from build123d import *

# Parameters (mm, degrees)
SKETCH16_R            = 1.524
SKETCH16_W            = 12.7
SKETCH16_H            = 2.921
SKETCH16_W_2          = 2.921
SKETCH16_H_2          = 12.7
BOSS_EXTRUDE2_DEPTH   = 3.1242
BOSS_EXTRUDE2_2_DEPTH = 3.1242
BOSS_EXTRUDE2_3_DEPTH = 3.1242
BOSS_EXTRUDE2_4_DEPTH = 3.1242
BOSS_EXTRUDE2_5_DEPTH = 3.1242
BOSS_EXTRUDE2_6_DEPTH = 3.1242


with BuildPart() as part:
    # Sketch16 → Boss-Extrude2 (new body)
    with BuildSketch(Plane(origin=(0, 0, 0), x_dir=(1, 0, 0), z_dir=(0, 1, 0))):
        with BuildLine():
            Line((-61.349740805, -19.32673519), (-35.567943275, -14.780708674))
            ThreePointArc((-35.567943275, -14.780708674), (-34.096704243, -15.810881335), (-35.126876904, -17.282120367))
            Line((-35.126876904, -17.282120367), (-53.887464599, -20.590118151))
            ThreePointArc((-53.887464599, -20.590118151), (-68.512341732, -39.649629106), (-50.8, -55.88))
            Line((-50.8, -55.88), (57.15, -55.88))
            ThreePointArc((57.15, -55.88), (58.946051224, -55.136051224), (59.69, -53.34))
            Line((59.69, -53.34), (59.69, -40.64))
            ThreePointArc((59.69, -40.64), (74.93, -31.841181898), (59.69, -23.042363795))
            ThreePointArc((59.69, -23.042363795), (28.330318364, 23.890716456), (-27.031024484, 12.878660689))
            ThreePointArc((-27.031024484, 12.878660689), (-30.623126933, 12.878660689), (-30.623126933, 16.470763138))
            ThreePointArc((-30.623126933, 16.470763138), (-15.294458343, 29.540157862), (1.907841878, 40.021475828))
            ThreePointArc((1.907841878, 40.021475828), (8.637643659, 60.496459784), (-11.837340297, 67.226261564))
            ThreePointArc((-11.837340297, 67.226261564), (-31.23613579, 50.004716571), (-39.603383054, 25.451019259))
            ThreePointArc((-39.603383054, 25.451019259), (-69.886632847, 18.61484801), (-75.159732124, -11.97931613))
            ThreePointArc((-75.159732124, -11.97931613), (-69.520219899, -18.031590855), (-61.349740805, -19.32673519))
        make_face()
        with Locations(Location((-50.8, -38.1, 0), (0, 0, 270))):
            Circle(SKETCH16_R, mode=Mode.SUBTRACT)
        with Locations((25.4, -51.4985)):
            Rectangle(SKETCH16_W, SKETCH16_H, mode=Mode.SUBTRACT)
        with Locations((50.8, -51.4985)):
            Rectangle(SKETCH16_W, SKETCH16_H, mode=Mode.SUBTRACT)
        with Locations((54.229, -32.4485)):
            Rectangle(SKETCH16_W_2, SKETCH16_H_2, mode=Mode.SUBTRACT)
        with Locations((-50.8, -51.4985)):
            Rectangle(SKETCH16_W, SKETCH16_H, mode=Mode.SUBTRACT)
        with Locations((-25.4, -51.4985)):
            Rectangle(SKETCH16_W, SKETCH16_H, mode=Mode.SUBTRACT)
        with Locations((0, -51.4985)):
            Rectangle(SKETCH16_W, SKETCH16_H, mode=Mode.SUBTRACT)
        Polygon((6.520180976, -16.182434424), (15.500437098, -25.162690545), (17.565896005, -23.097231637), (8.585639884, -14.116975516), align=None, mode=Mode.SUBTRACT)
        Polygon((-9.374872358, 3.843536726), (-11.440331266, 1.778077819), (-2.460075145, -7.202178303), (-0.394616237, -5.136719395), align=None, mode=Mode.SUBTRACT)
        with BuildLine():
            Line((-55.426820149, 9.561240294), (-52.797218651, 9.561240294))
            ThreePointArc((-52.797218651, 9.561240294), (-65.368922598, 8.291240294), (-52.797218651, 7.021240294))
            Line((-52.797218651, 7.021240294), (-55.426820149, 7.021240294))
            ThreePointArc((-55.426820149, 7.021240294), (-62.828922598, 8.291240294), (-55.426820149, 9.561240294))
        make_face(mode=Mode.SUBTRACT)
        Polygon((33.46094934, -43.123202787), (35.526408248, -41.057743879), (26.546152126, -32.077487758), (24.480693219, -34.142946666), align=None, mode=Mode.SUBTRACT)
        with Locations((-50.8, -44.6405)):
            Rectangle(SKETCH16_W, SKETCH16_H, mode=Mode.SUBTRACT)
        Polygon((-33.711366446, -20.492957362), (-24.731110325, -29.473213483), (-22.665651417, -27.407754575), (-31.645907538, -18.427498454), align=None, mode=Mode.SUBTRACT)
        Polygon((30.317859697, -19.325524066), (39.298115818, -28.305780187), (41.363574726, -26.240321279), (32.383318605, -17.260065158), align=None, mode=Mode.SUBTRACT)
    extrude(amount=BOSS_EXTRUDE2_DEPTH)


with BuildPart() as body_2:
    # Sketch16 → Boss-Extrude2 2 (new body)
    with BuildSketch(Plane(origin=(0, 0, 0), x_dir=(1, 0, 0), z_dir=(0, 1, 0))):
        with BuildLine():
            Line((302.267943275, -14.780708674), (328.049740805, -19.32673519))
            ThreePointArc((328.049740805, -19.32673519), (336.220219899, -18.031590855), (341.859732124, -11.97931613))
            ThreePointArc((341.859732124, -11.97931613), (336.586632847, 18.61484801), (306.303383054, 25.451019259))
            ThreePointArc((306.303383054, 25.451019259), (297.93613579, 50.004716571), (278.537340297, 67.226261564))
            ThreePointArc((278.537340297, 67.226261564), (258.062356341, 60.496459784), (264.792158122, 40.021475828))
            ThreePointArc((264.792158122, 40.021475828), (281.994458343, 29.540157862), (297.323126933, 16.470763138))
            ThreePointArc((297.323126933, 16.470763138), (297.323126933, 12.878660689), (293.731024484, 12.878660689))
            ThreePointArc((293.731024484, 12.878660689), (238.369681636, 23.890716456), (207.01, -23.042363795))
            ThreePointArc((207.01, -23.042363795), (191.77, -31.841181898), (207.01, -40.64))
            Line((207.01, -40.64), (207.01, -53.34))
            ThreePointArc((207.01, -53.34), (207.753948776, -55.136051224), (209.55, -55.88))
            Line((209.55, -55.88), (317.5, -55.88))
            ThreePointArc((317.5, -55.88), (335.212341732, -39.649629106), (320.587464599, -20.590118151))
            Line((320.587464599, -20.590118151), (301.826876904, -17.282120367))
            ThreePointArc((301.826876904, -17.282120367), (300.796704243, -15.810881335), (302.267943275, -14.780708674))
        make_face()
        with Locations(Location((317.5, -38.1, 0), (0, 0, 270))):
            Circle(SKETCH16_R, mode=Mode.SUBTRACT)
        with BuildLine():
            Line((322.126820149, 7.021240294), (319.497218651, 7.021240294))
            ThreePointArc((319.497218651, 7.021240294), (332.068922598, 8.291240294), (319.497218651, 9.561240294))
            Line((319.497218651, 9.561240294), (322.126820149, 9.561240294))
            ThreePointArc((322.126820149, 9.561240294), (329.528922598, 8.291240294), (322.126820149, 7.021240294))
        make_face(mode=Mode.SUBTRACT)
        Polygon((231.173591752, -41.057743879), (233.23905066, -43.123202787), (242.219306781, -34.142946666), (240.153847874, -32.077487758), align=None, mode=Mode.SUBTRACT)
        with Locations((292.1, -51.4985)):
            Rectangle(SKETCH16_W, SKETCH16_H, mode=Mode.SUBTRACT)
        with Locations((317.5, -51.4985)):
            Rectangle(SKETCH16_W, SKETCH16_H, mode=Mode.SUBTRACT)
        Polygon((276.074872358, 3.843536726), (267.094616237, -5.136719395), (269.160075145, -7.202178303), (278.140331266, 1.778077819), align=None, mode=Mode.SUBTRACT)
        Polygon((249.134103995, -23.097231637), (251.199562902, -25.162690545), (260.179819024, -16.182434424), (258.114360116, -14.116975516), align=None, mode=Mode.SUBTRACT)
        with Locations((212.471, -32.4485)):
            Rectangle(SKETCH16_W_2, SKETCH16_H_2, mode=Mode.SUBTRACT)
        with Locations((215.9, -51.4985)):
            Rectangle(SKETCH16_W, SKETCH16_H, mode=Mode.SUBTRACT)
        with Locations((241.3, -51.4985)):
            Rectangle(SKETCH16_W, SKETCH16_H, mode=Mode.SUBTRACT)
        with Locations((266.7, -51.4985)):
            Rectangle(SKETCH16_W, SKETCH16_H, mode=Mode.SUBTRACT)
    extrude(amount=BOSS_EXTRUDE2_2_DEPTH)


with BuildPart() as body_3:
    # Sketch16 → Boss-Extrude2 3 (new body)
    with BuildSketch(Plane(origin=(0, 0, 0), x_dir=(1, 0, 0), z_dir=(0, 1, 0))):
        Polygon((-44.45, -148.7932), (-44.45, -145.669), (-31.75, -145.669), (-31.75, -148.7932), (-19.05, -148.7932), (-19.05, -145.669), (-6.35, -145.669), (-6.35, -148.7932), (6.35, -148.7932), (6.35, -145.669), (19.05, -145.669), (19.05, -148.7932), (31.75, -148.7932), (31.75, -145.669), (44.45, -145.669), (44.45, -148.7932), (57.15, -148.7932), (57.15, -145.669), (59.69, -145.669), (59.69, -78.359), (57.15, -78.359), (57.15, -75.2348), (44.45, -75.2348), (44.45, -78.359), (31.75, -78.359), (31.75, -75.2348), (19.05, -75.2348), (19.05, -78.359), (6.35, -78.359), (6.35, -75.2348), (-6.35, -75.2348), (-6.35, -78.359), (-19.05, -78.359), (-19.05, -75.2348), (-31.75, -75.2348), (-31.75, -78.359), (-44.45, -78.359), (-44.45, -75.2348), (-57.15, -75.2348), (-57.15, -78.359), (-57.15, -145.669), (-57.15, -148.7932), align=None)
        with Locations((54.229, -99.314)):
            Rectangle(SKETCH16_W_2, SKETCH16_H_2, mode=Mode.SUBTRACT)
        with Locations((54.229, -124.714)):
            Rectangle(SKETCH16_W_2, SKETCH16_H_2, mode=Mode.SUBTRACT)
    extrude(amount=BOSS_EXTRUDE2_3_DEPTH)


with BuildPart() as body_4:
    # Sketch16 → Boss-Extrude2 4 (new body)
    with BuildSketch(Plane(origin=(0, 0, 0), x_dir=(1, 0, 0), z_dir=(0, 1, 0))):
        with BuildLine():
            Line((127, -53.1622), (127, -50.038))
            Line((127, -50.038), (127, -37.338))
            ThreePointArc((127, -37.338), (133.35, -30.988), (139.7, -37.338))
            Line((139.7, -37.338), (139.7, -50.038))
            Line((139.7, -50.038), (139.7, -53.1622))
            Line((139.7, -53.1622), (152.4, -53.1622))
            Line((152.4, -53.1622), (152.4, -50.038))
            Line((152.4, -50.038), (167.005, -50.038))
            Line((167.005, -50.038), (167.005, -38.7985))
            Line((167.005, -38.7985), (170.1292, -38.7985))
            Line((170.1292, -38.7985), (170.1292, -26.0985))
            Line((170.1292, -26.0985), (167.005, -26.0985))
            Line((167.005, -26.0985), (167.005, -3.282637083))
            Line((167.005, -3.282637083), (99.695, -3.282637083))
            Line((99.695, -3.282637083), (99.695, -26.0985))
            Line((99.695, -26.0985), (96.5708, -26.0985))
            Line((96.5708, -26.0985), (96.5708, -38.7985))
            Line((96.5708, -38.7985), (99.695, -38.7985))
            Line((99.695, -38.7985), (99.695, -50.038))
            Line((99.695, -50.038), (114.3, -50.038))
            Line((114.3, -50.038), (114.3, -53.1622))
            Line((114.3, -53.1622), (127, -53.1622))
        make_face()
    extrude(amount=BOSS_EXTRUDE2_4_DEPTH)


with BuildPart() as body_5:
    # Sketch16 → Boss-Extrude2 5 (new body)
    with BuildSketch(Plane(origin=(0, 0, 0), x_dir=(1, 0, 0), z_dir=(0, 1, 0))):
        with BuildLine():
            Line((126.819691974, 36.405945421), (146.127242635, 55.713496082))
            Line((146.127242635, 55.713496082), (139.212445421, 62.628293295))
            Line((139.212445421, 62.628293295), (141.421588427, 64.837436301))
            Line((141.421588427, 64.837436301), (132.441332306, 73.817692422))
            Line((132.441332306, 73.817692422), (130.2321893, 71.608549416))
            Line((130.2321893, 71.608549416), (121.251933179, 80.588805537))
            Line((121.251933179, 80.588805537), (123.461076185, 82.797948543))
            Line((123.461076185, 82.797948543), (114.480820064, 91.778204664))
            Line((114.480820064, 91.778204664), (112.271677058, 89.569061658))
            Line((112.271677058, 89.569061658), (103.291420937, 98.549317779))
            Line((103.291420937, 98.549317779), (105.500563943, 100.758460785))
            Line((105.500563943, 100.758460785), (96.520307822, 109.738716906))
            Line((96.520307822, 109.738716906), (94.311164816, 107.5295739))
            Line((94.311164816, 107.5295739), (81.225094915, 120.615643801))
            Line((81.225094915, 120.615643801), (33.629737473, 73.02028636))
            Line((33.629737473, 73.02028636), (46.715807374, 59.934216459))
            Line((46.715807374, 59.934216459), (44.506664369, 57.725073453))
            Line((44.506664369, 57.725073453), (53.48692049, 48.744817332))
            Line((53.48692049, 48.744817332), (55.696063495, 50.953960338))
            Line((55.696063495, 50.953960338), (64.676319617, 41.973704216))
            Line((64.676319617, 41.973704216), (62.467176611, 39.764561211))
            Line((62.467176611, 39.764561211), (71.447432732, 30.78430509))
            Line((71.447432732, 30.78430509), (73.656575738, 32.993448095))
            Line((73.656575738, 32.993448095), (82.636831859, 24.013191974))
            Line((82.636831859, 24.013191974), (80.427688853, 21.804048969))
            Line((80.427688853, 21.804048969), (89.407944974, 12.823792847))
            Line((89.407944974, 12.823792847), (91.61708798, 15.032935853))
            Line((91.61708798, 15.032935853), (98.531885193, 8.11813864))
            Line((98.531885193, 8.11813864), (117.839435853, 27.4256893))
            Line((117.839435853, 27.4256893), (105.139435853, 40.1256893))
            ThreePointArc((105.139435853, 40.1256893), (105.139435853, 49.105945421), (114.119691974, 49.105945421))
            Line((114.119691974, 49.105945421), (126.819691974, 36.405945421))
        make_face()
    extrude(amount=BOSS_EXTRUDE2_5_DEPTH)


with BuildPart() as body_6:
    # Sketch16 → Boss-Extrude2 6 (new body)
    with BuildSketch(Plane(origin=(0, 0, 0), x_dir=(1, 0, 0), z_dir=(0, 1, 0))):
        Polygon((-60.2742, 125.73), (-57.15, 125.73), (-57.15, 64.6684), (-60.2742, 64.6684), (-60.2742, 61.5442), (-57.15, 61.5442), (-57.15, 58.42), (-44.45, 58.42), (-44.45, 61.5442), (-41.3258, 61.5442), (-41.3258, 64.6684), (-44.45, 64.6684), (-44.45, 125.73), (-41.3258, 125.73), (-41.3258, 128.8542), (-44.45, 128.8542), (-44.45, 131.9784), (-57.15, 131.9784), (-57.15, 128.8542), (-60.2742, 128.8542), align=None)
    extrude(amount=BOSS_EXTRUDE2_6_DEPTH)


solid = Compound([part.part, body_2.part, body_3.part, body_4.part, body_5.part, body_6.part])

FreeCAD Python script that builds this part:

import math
import FreeCAD as App
import Part
import Sketcher
from FreeCAD import Vector
Q = App.Units.Quantity


def add_polygon(sketch, points):
    """Adds a closed chain of lines whose ends are joined by coincident constraints."""
    first, n = sketch.GeometryCount, len(points)
    for a, b in zip(points, points[1:] + points[:1]):
        sketch.addGeometry(Part.LineSegment(App.Vector(*a, 0), App.Vector(*b, 0)), False)
    for i in range(n):
        sketch.addConstraint(Sketcher.Constraint("Coincident", first + i, 2, first + (i + 1) % n, 1))

doc = App.newDocument("Part")
body = doc.addObject("PartDesign::Body", "Body")

# Sketch on XZ plane
sketch1 = doc.addObject("Sketcher::SketchObject", "Sketch")
body.addObject(sketch1)
sketch1.AttachmentSupport = (doc.XZ_Plane, [""])
sketch1.MapMode = "FlatFace"
sketch1.addGeometry(Part.LineSegment(Vector(-61.3, 19.3, 0), Vector(-35.6, 14.8, 0)), False)  # 0
sketch1.addGeometry(Part.ArcOfCircle(Part.Circle(Vector(-35.3, 16, 0), Vector(0, 0, 1), 1.3), math.radians(-100), math.radians(80)), False)  # 1
sketch1.addGeometry(Part.LineSegment(Vector(-35.1, 17.3, 0), Vector(-53.9, 20.6, 0)), False)  # 2
sketch1.addGeometry(Part.ArcOfCircle(Part.Circle(Vector(-50.8, 38.1, 0), Vector(0, 0, 1), 17.8), math.radians(90), math.radians(260)), False)  # 3
sketch1.addGeometry(Part.LineSegment(Vector(-50.8, 55.9, 0), Vector(57.1, 55.9, 0)), False)  # 4
sketch1.addGeometry(Part.ArcOfCircle(Part.Circle(Vector(57.1, 53.3, 0), Vector(0, 0, 1), 2.5), math.radians(0), math.radians(90)), False)  # 5
sketch1.addGeometry(Part.LineSegment(Vector(59.7, 53.3, 0), Vector(59.7, 40.6, 0)), False)  # 6
sketch1.addGeometry(Part.ArcOfCircle(Part.Circle(Vector(64.8, 31.8, 0), Vector(0, 0, 1), 10.2), math.radians(-120), math.radians(120)), False)  # 7
sketch1.addGeometry(Part.ArcOfCircle(Part.Circle(Vector(8.9, 23, 0), Vector(0, 0, 1), 50.8), math.radians(-135), math.radians(0)), False)  # 8
sketch1.addGeometry(Part.ArcOfCircle(Part.Circle(Vector(-28.8, -14.7, 0), Vector(0, 0, 1), 2.5), math.radians(45), math.radians(225)), False)  # 9
sketch1.addGeometry(Part.ArcOfCircle(Part.Circle(Vector(59.2, 73.3, 0), Vector(0, 0, 1), 127), math.radians(-135), math.radians(-116.81)), False)  # 10
sketch1.addGeometry(Part.ArcOfCircle(Part.Circle(Vector(-5, -53.6, 0), Vector(0, 0, 1), 15.2), math.radians(-117), math.radians(63)), False)  # 11
sketch1.addGeometry(Part.ArcOfCircle(Part.Circle(Vector(11.1, -21.9, 0), Vector(0, 0, 1), 50.8), math.radians(-176), math.radians(-117)), False)  # 12
sketch1.addGeometry(Part.ArcOfCircle(Part.Circle(Vector(-49.6, 0.6, 0), Vector(0, 0, 1), 27.9), math.radians(156), math.radians(291)), False)  # 13
sketch1.addGeometry(Part.ArcOfCircle(Part.Circle(Vector(-63.6, 6.8, 0), Vector(0, 0, 1), 12.7), math.radians(80), math.radians(156)), False)  # 14
add_polygon(sketch1, [(-44.5, 53), (-57.1, 53), (-57.1, 50), (-44.5, 50)])  # lines 15-18
add_polygon(sketch1, [(-44.5, 46.1), (-57.1, 46.1), (-57.1, 43.2), (-44.5, 43.2)])  # lines 19-22
sketch1.addGeometry(Part.Circle(Vector(-50.8, 38.1, 0), Vector(0, 0, 1), 1.5), False)  # 23
add_polygon(sketch1, [(-19.1, 53), (-31.8, 53), (-31.8, 50), (-19.1, 50)])  # lines 24-27
add_polygon(sketch1, [(-24.7, 29.5), (-33.7, 20.5), (-31.6, 18.4), (-22.7, 27.4)])  # lines 28-31
add_polygon(sketch1, [(6.3, 53), (-6.3, 53), (-6.3, 50), (6.3, 50)])  # lines 32-35
add_polygon(sketch1, [(31.8, 53), (19.1, 53), (19.1, 50), (31.8, 50)])  # lines 36-39
add_polygon(sketch1, [(57.1, 53), (44.5, 53), (44.5, 50), (57.1, 50)])  # lines 40-43
add_polygon(sketch1, [(35.5, 41.1), (33.5, 43.1), (24.5, 34.1), (26.5, 32.1)])  # lines 44-47
add_polygon(sketch1, [(15.5, 25.2), (6.5, 16.2), (8.6, 14.1), (17.6, 23.1)])  # lines 48-51
add_polygon(sketch1, [(55.7, 38.8), (52.8, 38.8), (52.8, 26.1), (55.7, 26.1)])  # lines 52-55
add_polygon(sketch1, [(39.3, 28.3), (30.3, 19.3), (32.4, 17.3), (41.4, 26.2)])  # lines 56-59
sketch1.addGeometry(Part.LineSegment(Vector(-52.8, -9.6, 0), Vector(-55.4, -9.6, 0)), False)  # 60
sketch1.addGeometry(Part.ArcOfCircle(Part.Circle(Vector(-59, -8.3, 0), Vector(0, 0, 1), 3.8), math.radians(19), math.radians(341)), False)  # 61
sketch1.addGeometry(Part.LineSegment(Vector(-55.4, -7, 0), Vector(-52.8, -7, 0)), False)  # 62
sketch1.addGeometry(Part.ArcOfCircle(Part.Circle(Vector(-59, -8.3, 0), Vector(0, 0, 1), 6.3), math.radians(12), math.radians(348)), False)  # 63
add_polygon(sketch1, [(-11.4, -1.8), (-9.4, -3.8), (-0.4, 5.1), (-2.5, 7.2)])  # lines 64-67
sketch1.addConstraint([
    Sketcher.Constraint("Tangent", 0, 2, 1, 1),
    Sketcher.Constraint("Tangent", 1, 2, 2, 1),
    Sketcher.Constraint("Tangent", 2, 2, 3, 2),
    Sketcher.Constraint("Tangent", 3, 1, 4, 1),
    Sketcher.Constraint("Tangent", 4, 2, 5, 2),
    Sketcher.Constraint("Tangent", 5, 1, 6, 1),
    Sketcher.Constraint("Coincident", 6, 2, 7, 2),
    Sketcher.Constraint("Coincident", 7, 1, 8, 2),
    Sketcher.Constraint("Tangent", 8, 1, 9, 1),
    Sketcher.Constraint("Tangent", 9, 2, 10, 1),
    Sketcher.Constraint("Tangent", 10, 2, 11, 2),
    Sketcher.Constraint("Tangent", 11, 1, 12, 2),
    Sketcher.Constraint("Coincident", 12, 1, 13, 2),
    Sketcher.Constraint("Tangent", 13, 1, 14, 2),
    Sketcher.Constraint("Tangent", 14, 1, 0, 1),
    Sketcher.Constraint("Coincident", 60, 2, 61, 2),
    Sketcher.Constraint("Coincident", 61, 1, 62, 1),
    Sketcher.Constraint("Coincident", 62, 2, 63, 1),
    Sketcher.Constraint("Coincident", 63, 2, 60, 1),
    Sketcher.Constraint("Horizontal", 4),
    Sketcher.Constraint("Vertical", 6),
    Sketcher.Constraint("Horizontal", 15),
    Sketcher.Constraint("Vertical", 16),
    Sketcher.Constraint("Horizontal", 17),
    Sketcher.Constraint("Vertical", 18),
    Sketcher.Constraint("Horizontal", 19),
    Sketcher.Constraint("Vertical", 20),
    Sketcher.Constraint("Horizontal", 21),
    Sketcher.Constraint("Vertical", 22),
    Sketcher.Constraint("Horizontal", 24),
    Sketcher.Constraint("Vertical", 25),
    Sketcher.Constraint("Horizontal", 26),
    Sketcher.Constraint("Vertical", 27),
    Sketcher.Constraint("Horizontal", 32),
    Sketcher.Constraint("Vertical", 33),
    Sketcher.Constraint("Horizontal", 34),
    Sketcher.Constraint("Vertical", 35),
    Sketcher.Constraint("Horizontal", 36),
    Sketcher.Constraint("Vertical", 37),
    Sketcher.Constraint("Horizontal", 38),
    Sketcher.Constraint("Vertical", 39),
    Sketcher.Constraint("Horizontal", 40),
    Sketcher.Constraint("Vertical", 41),
    Sketcher.Constraint("Horizontal", 42),
    Sketcher.Constraint("Vertical", 43),
    Sketcher.Constraint("Horizontal", 52),
    Sketcher.Constraint("Vertical", 53),
    Sketcher.Constraint("Horizontal", 54),
    Sketcher.Constraint("Vertical", 55),
    Sketcher.Constraint("Horizontal", 60),
    Sketcher.Constraint("Horizontal", 62),
    Sketcher.Constraint("Coincident", 23, 3, 3, 3),
    Sketcher.Constraint("Coincident", 63, 3, 61, 3),
    Sketcher.Constraint("Equal", 5, 9),
    Sketcher.Constraint("Equal", 8, 12),
    Sketcher.Constraint("Symmetric", 27, 2, 36, 2, -2),
    Sketcher.Constraint("Symmetric", 25, 2, 38, 2, -2),
    Sketcher.Constraint("Symmetric", 18, 2, 40, 2, -2),
    Sketcher.Constraint("Symmetric", 16, 2, 42, 2, -2),
    Sketcher.Constraint("Parallel", 0, 2),
    Sketcher.Constraint("Perpendicular", 28, 29),
    Sketcher.Constraint("Perpendicular", 29, 30),
    Sketcher.Constraint("Perpendicular", 30, 31),
    Sketcher.Constraint("Parallel", 31, 44),
    Sketcher.Constraint("Perpendicular", 44, 45),
    Sketcher.Constraint("Perpendicular", 45, 46),
    Sketcher.Constraint("Perpendicular", 46, 47),
    Sketcher.Constraint("Parallel", 47, 48),
    Sketcher.Constraint("Perpendicular", 48, 49),
    Sketcher.Constraint("Perpendicular", 49, 50),
    Sketcher.Constraint("Perpendicular", 50, 51),
    Sketcher.Constraint("Perpendicular", 51, 56),
    Sketcher.Constraint("Perpendicular", 56, 57),
    Sketcher.Constraint("Perpendicular", 57, 58),
    Sketcher.Constraint("Perpendicular", 58, 59),
    Sketcher.Constraint("Parallel", 59, 64),
    Sketcher.Constraint("Perpendicular", 64, 65),
    Sketcher.Constraint("Perpendicular", 65, 66),
    Sketcher.Constraint("Perpendicular", 66, 67),
    Sketcher.Constraint("Horizontal", 8, 3, 7, 1),
    Sketcher.Constraint("Horizontal", 18, 2, 24, 2),
    Sketcher.Constraint("Horizontal", 17, 2, 25, 2),
    Sketcher.Constraint("Horizontal", 27, 2, 32, 2),
    Sketcher.Constraint("Horizontal", 26, 2, 33, 2),
    Sketcher.Constraint("Vertical", 6, 2, 7, 1),
    Sketcher.Constraint("Vertical", 16, 2, 19, 2),
    Sketcher.Constraint("Vertical", 18, 2, 21, 2),
    Sketcher.Constraint("Vertical", 4, 2, 42, 2),
    Sketcher.Constraint("Vertical", 60, 2, 61, 1),
    Sketcher.Constraint("Equal", 21, 24),
    Sketcher.Constraint("Equal", 26, 32),
    Sketcher.Constraint("Equal", 42, 6),
    Sketcher.Constraint("Equal", 54, 16),
    Sketcher.Constraint("Equal", 18, 20),
    Sketcher.Constraint("Equal", 6, 53),
    Sketcher.Constraint("Equal", 31, 44),
    Sketcher.Constraint("Equal", 30, 45),
    Sketcher.Constraint("Equal", 47, 48),
    Sketcher.Constraint("Equal", 46, 49),
    Sketcher.Constraint("Equal", 50, 56),
    Sketcher.Constraint("Equal", 51, 57),
    Sketcher.Constraint("Equal", 59, 64),
    Sketcher.Constraint("Equal", 58, 65),
    Sketcher.Constraint("Radius", 8, Q("2 in")),
    Sketcher.Constraint("Radius", 10, Q("5 in")),
    Sketcher.Constraint("Radius", 3, Q("0.7 in")),
    Sketcher.Constraint("Radius", 5, Q("0.1 in")),
    Sketcher.Constraint("Radius", 7, Q("0.4 in")),
    Sketcher.Constraint("Radius", 11, Q("0.6 in")),
    Sketcher.Constraint("Radius", 13, Q("1.1 in")),
    Sketcher.Constraint("Radius", 14, Q("0.5 in")),
    Sketcher.Constraint("Diameter", 23, Q("0.12 in")),
    Sketcher.Constraint("Radius", 1, Q("0.05 in")),
    Sketcher.Constraint("Radius", 61, Q("0.15 in")),
    Sketcher.Constraint("Radius", 63, Q("0.25 in")),
    Sketcher.Constraint("DistanceX", 15, 2, 15, 1, Q("0.5 in")),
    Sketcher.Constraint("DistanceX", 3, 3, -1, 1, Q("2 in")),
    Sketcher.Constraint("Angle", 0, Q("-10 deg")),
    Sketcher.Constraint("Angle", 28, Q("-135 deg")),
    Sketcher.Constraint("Distance", 28, Q("0.5 in")),
    Sketcher.Constraint("DistanceX", 4, 1, 4, 2, Q("4.25 in")),
    Sketcher.Constraint("DistanceY", -1, 1, 3, 3, Q("1.5 in")),
    Sketcher.Constraint("DistanceY", -1, 1, 20, 2, Q("1.7 in")),
    Sketcher.Constraint("Distance", 2, Q("0.75 in")),
    Sketcher.Constraint("DistanceX", 52, 2, 52, 1, Q("0.115 in")),
    Sketcher.Constraint("DistanceX", -1, 1, 7, 3, Q("2.55 in")),
    Sketcher.Constraint("DistanceY", -1, 1, 16, 2, Q("1.97 in")),
    Sketcher.Constraint("DistanceX", 24, 2, -1, 1, Q("1.25 in")),
    Sketcher.Constraint("DistanceX", 32, 2, -1, 1, Q("0.25 in")),
    Sketcher.Constraint("Distance", 29, Q("0.115 in")),
    Sketcher.Constraint("DistanceX", 60, 2, 60, 1, 2.629601),
    Sketcher.Constraint("DistanceX", -1, 1, 48, 2, Q("0.2567 in")),
    Sketcher.Constraint("DistanceX", -1, 1, 52, 2, Q("2.0775 in")),
    Sketcher.Constraint("DistanceY", -1, 1, 52, 2, Q("1.5275 in")),
    Sketcher.Constraint("DistanceY", -1, 1, 10, 3, 73.331798),
    Sketcher.Constraint("DistanceY", -1, 1, 29, 2, 18.427498),
    Sketcher.Constraint("DistanceY", 9, 3, -1, 1, 14.674712),
    Sketcher.Constraint("DistanceX", 11, 3, -1, 1, 4.964749),
    Sketcher.Constraint("DistanceX", 13, 3, -1, 1, 49.629481),
    Sketcher.Constraint("DistanceY", -1, 1, 13, 3, 0.628109),
    Sketcher.Constraint("DistanceY", 61, 3, -1, 1, 8.29124),
    Sketcher.Constraint("DistanceX", 11, 1, -1, 1, 11.83734),
    Sketcher.Constraint("DistanceX", 30, 2, -1, 1, 22.665651),
    Sketcher.Constraint("DistanceX", -1, 1, 44, 2, 33.460949),
    Sketcher.Constraint("DistanceY", -1, 1, 50, 2, 23.097232),
    Sketcher.Constraint("DistanceX", -1, 1, 56, 2, 30.31786),
    Sketcher.Constraint("DistanceY", -1, 1, 58, 2, 26.240321),
    Sketcher.Constraint("DistanceX", 60, 2, -1, 1, 55.42682),
    Sketcher.Constraint("DistanceY", -1, 1, 65, 2, 5.136719),
    Sketcher.Constraint("DistanceX", 67, 2, -1, 1, 11.440331),
    Sketcher.Constraint("DistanceY", -1, 1, 44, 2, 43.123203),
])
pad1 = doc.addObject("PartDesign::Pad", "Pad")
body.addObject(pad1)
pad1.Profile = sketch1
pad1.Length = Q("0.123 in")
pad1.Reversed = True
body2 = doc.addObject("PartDesign::Body", "Body001")

# Sketch on XZ plane
sketch2 = doc.addObject("Sketcher::SketchObject", "Sketch001")
body2.addObject(sketch2)
sketch2.AttachmentSupport = (doc.getObject("XZ_Plane001"), [""])
sketch2.MapMode = "FlatFace"
sketch2.addGeometry(Part.LineSegment(Vector(302.3, 14.8, 0), Vector(328, 19.3, 0)), False)  # 0
sketch2.addGeometry(Part.ArcOfCircle(Part.Circle(Vector(330.3, 6.8, 0), Vector(0, 0, 1), 12.7), math.radians(24), math.radians(100)), False)  # 1
sketch2.addGeometry(Part.ArcOfCircle(Part.Circle(Vector(316.3, 0.6, 0), Vector(0, 0, 1), 27.9), math.radians(-111), math.radians(24)), False)  # 2
sketch2.addGeometry(Part.ArcOfCircle(Part.Circle(Vector(255.6, -21.9, 0), Vector(0, 0, 1), 50.8), math.radians(-63), math.radians(-4)), False)  # 3
sketch2.addGeometry(Part.ArcOfCircle(Part.Circle(Vector(271.7, -53.6, 0), Vector(0, 0, 1), 15.2), math.radians(117), math.radians(297)), False)  # 4
sketch2.addGeometry(Part.ArcOfCircle(Part.Circle(Vector(207.5, 73.3, 0), Vector(0, 0, 1), 127), math.radians(-63.19), math.radians(-45)), False)  # 5
sketch2.addGeometry(Part.ArcOfCircle(Part.Circle(Vector(295.5, -14.7, 0), Vector(0, 0, 1), 2.5), math.radians(-45), math.radians(135)), False)  # 6
sketch2.addGeometry(Part.ArcOfCircle(Part.Circle(Vector(257.8, 23, 0), Vector(0, 0, 1), 50.8), math.radians(-180), math.radians(-45)), False)  # 7
sketch2.addGeometry(Part.ArcOfCircle(Part.Circle(Vector(201.9, 31.8, 0), Vector(0, 0, 1), 10.2), math.radians(60), math.radians(300)), False)  # 8
sketch2.addGeometry(Part.LineSegment(Vector(207, 40.6, 0), Vector(207, 53.3, 0)), False)  # 9
sketch2.addGeometry(Part.ArcOfCircle(Part.Circle(Vector(209.6, 53.3, 0), Vector(0, 0, 1), 2.5), math.radians(90), math.radians(180)), False)  # 10
sketch2.addGeometry(Part.LineSegment(Vector(209.6, 55.9, 0), Vector(317.5, 55.9, 0)), False)  # 11
sketch2.addGeometry(Part.ArcOfCircle(Part.Circle(Vector(317.5, 38.1, 0), Vector(0, 0, 1), 17.8), math.radians(-80), math.radians(90)), False)  # 12
sketch2.addGeometry(Part.LineSegment(Vector(320.6, 20.6, 0), Vector(301.8, 17.3, 0)), False)  # 13
sketch2.addGeometry(Part.ArcOfCircle(Part.Circle(Vector(302, 16, 0), Vector(0, 0, 1), 1.3), math.radians(100), math.radians(280)), False)  # 14
add_polygon(sketch2, [(222.2, 53), (209.6, 53), (209.6, 50), (222.2, 50)])  # lines 15-18
add_polygon(sketch2, [(233.2, 43.1), (231.2, 41.1), (240.2, 32.1), (242.2, 34.1)])  # lines 19-22
add_polygon(sketch2, [(247.7, 53), (234.9, 53), (234.9, 50), (247.7, 50)])  # lines 23-26
add_polygon(sketch2, [(273.1, 53), (260.4, 53), (260.4, 50), (273.1, 50)])  # lines 27-30
add_polygon(sketch2, [(213.9, 38.8), (211, 38.8), (211, 26.1), (213.9, 26.1)])  # lines 31-34
add_polygon(sketch2, [(251.2, 25.2), (249.1, 23.1), (258.1, 14.1), (260.2, 16.2)])  # lines 35-38
add_polygon(sketch2, [(298.4, 53), (285.8, 53), (285.8, 50), (298.4, 50)])  # lines 39-42
add_polygon(sketch2, [(323.9, 53), (311.1, 53), (311.1, 50), (323.9, 50)])  # lines 43-46
sketch2.addGeometry(Part.Circle(Vector(317.5, 38.1, 0), Vector(0, 0, 1), 1.5), False)  # 47
add_polygon(sketch2, [(267.1, 5.1), (276.1, -3.8), (278.1, -1.8), (269.2, 7.2)])  # lines 48-51
sketch2.addGeometry(Part.LineSegment(Vector(319.5, -7, 0), Vector(322.1, -7, 0)), False)  # 52
sketch2.addGeometry(Part.ArcOfCircle(Part.Circle(Vector(325.7, -8.3, 0), Vector(0, 0, 1), 3.8), math.radians(-161), math.radians(161)), False)  # 53
sketch2.addGeometry(Part.LineSegment(Vector(322.1, -9.6, 0), Vector(319.5, -9.6, 0)), False)  # 54
sketch2.addGeometry(Part.ArcOfCircle(Part.Circle(Vector(325.7, -8.3, 0), Vector(0, 0, 1), 6.3), math.radians(-168), math.radians(168)), False)  # 55
sketch2.addConstraint([
    Sketcher.Constraint("Tangent", 0, 2, 1, 2),
    Sketcher.Constraint("Tangent", 1, 1, 2, 2),
    Sketcher.Constraint("Coincident", 2, 1, 3, 2),
    Sketcher.Constraint("Tangent", 3, 1, 4, 2),
    Sketcher.Constraint("Tangent", 4, 1, 5, 1),
    Sketcher.Constraint("Tangent", 5, 2, 6, 1),
    Sketcher.Constraint("Tangent", 6, 2, 7, 2),
    Sketcher.Constraint("Coincident", 7, 1, 8, 2),
    Sketcher.Constraint("Coincident", 8, 1, 9, 1),
    Sketcher.Constraint("Tangent", 9, 2, 10, 2),
    Sketcher.Constraint("Tangent", 10, 1, 11, 1),
    Sketcher.Constraint("Tangent", 11, 2, 12, 2),
    Sketcher.Constraint("Tangent", 12, 1, 13, 1),
    Sketcher.Constraint("Tangent", 13, 2, 14, 1),
    Sketcher.Constraint("Tangent", 14, 2, 0, 1),
    Sketcher.Constraint("Coincident", 52, 2, 53, 2),
    Sketcher.Constraint("Coincident", 53, 1, 54, 1),
    Sketcher.Constraint("Coincident", 54, 2, 55, 1),
    Sketcher.Constraint("Coincident", 55, 2, 52, 1),
    Sketcher.Constraint("Vertical", 9),
    Sketcher.Constraint("Horizontal", 11),
    Sketcher.Constraint("Horizontal", 15),
    Sketcher.Constraint("Vertical", 16),
    Sketcher.Constraint("Horizontal", 17),
    Sketcher.Constraint("Vertical", 18),
    Sketcher.Constraint("Horizontal", 23),
    Sketcher.Constraint("Vertical", 24),
    Sketcher.Constraint("Horizontal", 25),
    Sketcher.Constraint("Vertical", 26),
    Sketcher.Constraint("Horizontal", 27),
    Sketcher.Constraint("Vertical", 28),
    Sketcher.Constraint("Horizontal", 29),
    Sketcher.Constraint("Vertical", 30),
    Sketcher.Constraint("Horizontal", 31),
    Sketcher.Constraint("Vertical", 32),
    Sketcher.Constraint("Horizontal", 33),
    Sketcher.Constraint("Vertical", 34),
    Sketcher.Constraint("Horizontal", 39),
    Sketcher.Constraint("Vertical", 40),
    Sketcher.Constraint("Horizontal", 41),
    Sketcher.Constraint("Vertical", 42),
    Sketcher.Constraint("Horizontal", 43),
    Sketcher.Constraint("Vertical", 44),
    Sketcher.Constraint("Horizontal", 45),
    Sketcher.Constraint("Vertical", 46),
    Sketcher.Constraint("Horizontal", 52),
    Sketcher.Constraint("Horizontal", 54),
    Sketcher.Constraint("Coincident", 47, 3, 12, 3),
    Sketcher.Constraint("Coincident", 55, 3, 53, 3),
    Sketcher.Constraint("Equal", 3, 7),
    Sketcher.Constraint("Equal", 6, 10),
    Sketcher.Constraint("Parallel", 0, 13),
    Sketcher.Constraint("Perpendicular", 19, 20),
    Sketcher.Constraint("Perpendicular", 20, 21),
    Sketcher.Constraint("Perpendicular", 21, 22),
    Sketcher.Constraint("Perpendicular", 22, 35),
    Sketcher.Constraint("Perpendicular", 35, 36),
    Sketcher.Constraint("Perpendicular", 36, 37),
    Sketcher.Constraint("Perpendicular", 37, 38),
    Sketcher.Constraint("Parallel", 38, 48),
    Sketcher.Constraint("Perpendicular", 48, 49),
    Sketcher.Constraint("Perpendicular", 49, 50),
    Sketcher.Constraint("Perpendicular", 50, 51),
    Sketcher.Constraint("Horizontal", 18, 2, 23, 2),
    Sketcher.Constraint("Horizontal", 17, 2, 24, 2),
    Sketcher.Constraint("Horizontal", 26, 2, 27, 2),
    Sketcher.Constraint("Horizontal", 25, 2, 28, 2),
    Sketcher.Constraint("Horizontal", 30, 2, 39, 2),
    Sketcher.Constraint("Horizontal", 29, 2, 40, 2),
    Sketcher.Constraint("Horizontal", 42, 2, 43, 2),
    Sketcher.Constraint("Horizontal", 41, 2, 44, 2),
    Sketcher.Constraint("Vertical", 7, 1, 8, 1),
    Sketcher.Constraint("Vertical", 10, 1, 15, 2),
    Sketcher.Constraint("Vertical", 52, 2, 53, 1),
    Sketcher.Constraint("Equal", 17, 23),
    Sketcher.Constraint("Equal", 25, 27),
    Sketcher.Constraint("Equal", 29, 39),
    Sketcher.Constraint("Equal", 41, 43),
    Sketcher.Constraint("Equal", 45, 9),
    Sketcher.Constraint("Equal", 33, 16),
    Sketcher.Constraint("Equal", 9, 32),
    Sketcher.Constraint("Equal", 21, 35),
    Sketcher.Constraint("Equal", 22, 36),
    Sketcher.Constraint("Equal", 38, 48),
    Sketcher.Constraint("Equal", 37, 49),
    Sketcher.Constraint("Radius", 3, Q("2 in")),
    Sketcher.Constraint("Radius", 5, Q("5 in")),
    Sketcher.Constraint("Radius", 1, Q("0.5 in")),
    Sketcher.Constraint("Radius", 2, Q("1.1 in")),
    Sketcher.Constraint("Radius", 4, Q("0.6 in")),
    Sketcher.Constraint("Radius", 6, Q("0.1 in")),
    Sketcher.Constraint("Radius", 8, Q("0.4 in")),
    Sketcher.Constraint("Radius", 12, Q("0.7 in")),
    Sketcher.Constraint("Diameter", 47, Q("0.12 in")),
    Sketcher.Constraint("Radius", 14, Q("0.05 in")),
    Sketcher.Constraint("Radius", 53, Q("0.15 in")),
    Sketcher.Constraint("Radius", 55, Q("0.25 in")),
    Sketcher.Constraint("DistanceX", 15, 2, 15, 1, Q("0.5 in")),
    Sketcher.Constraint("Angle", 0, Q("10 deg")),
    Sketcher.Constraint("Angle", 19, Q("-135 deg")),
    Sketcher.Constraint("Distance", 20, Q("0.5 in")),
    Sketcher.Constraint("DistanceX", 11, 1, 11, 2, Q("4.25 in")),
    Sketcher.Constraint("DistanceY", -1, 1, 10, 3, Q("2.1 in")),
    Sketcher.Constraint("DistanceX", -1, 1, 12, 3, Q("12.5 in")),
    Sketcher.Constraint("Distance", 13, Q("0.75 in")),
    Sketcher.Constraint("DistanceX", 31, 2, 31, 1, Q("0.115 in")),
    Sketcher.Constraint("DistanceX", -1, 1, 8, 3, Q("7.95 in")),
    Sketcher.Constraint("DistanceY", -1, 1, 16, 2, Q("1.97 in")),
    Sketcher.Constraint("DistanceX", -1, 1, 23, 2, Q("9.25 in")),
    Sketcher.Constraint("DistanceX", -1, 1, 27, 2, Q("10.25 in")),
    Sketcher.Constraint("DistanceX", -1, 1, 39, 2, Q("11.25 in")),
    Sketcher.Constraint("DistanceX", -1, 1, 43, 2, Q("12.25 in")),
    Sketcher.Constraint("Distance", 19, Q("0.115 in")),
    Sketcher.Constraint("DistanceX", 52, 1, 52, 2, 2.629601),
    Sketcher.Constraint("DistanceX", -1, 1, 31, 2, Q("8.3075 in")),
    Sketcher.Constraint("DistanceY", -1, 1, 31, 2, Q("1.5275 in")),
    Sketcher.Constraint("DistanceX", -1, 1, 37, 2, Q("10.2433 in")),
    Sketcher.Constraint("DistanceY", -1, 1, 5, 3, 73.331798),
    Sketcher.Constraint("DistanceX", -1, 1, 2, 3, 316.329481),
    Sketcher.Constraint("DistanceY", -1, 1, 2, 3, 0.628109),
    Sketcher.Constraint("DistanceX", -1, 1, 4, 3, 271.664749),
    Sketcher.Constraint("DistanceY", 4, 3, -1, 1, 53.623869),
    Sketcher.Constraint("DistanceY", 6, 3, -1, 1, 14.674712),
    Sketcher.Constraint("DistanceY", 53, 3, -1, 1, 8.29124),
    Sketcher.Constraint("DistanceY", 2, 1, -1, 1, 25.451019),
    Sketcher.Constraint("DistanceX", -1, 1, 19, 2, 231.173592),
    Sketcher.Constraint("DistanceY", -1, 1, 35, 2, 23.097232),
    Sketcher.Constraint("DistanceX", -1, 1, 49, 2, 278.140331),
    Sketcher.Constraint("DistanceY", -1, 1, 50, 2, 7.202178),
    Sketcher.Constraint("DistanceX", -1, 1, 52, 2, 322.12682),
    Sketcher.Constraint("DistanceY", -1, 1, 19, 2, 41.057744),
])
pad2 = doc.addObject("PartDesign::Pad", "Pad001")
body2.addObject(pad2)
pad2.Profile = sketch2
pad2.Length = Q("0.123 in")
pad2.Reversed = True
body3 = doc.addObject("PartDesign::Body", "Body002")

# Sketch on XZ plane
sketch3 = doc.addObject("Sketcher::SketchObject", "Sketch002")
body3.addObject(sketch3)
sketch3.AttachmentSupport = (doc.getObject("XZ_Plane002"), [""])
sketch3.MapMode = "FlatFace"
add_polygon(sketch3, [(-44.5, 148.8), (-44.5, 145.7), (-31.8, 145.7), (-31.8, 148.8), (-19.1, 148.8), (-19.1, 145.7), (-6.3, 145.7), (-6.3, 148.8), (6.3, 148.8), (6.3, 145.7), (19.1, 145.7), (19.1, 148.8), (31.8, 148.8), (31.8, 145.7), (44.5, 145.7), (44.5, 148.8), (57.1, 148.8), (57.1, 145.7), (59.7, 145.7), (59.7, 78.4), (57.1, 78.4), (57.1, 75.2), (44.5, 75.2), (44.5, 78.4), (31.8, 78.4), (31.8, 75.2), (19.1, 75.2), (19.1, 78.4), (6.3, 78.4), (6.3, 75.2), (-6.3, 75.2), (-6.3, 78.4), (-19.1, 78.4), (-19.1, 75.2), (-31.8, 75.2), (-31.8, 78.4), (-44.5, 78.4), (-44.5, 75.2), (-57.1, 75.2), (-57.1, 148.8)])  # lines 0-39
add_polygon(sketch3, [(55.7, 131.1), (52.8, 131.1), (52.8, 118.4), (55.7, 118.4)])  # lines 40-43
add_polygon(sketch3, [(55.7, 105.7), (52.8, 105.7), (52.8, 93), (55.7, 93)])  # lines 44-47
sketch3.addConstraint([
    Sketcher.Constraint("Vertical", 0),
    Sketcher.Constraint("Horizontal", 1),
    Sketcher.Constraint("Vertical", 2),
    Sketcher.Constraint("Horizontal", 3),
    Sketcher.Constraint("Vertical", 4),
    Sketcher.Constraint("Horizontal", 5),
    Sketcher.Constraint("Vertical", 6),
    Sketcher.Constraint("Horizontal", 7),
    Sketcher.Constraint("Vertical", 8),
    Sketcher.Constraint("Horizontal", 9),
    Sketcher.Constraint("Vertical", 10),
    Sketcher.Constraint("Horizontal", 11),
    Sketcher.Constraint("Vertical", 12),
    Sketcher.Constraint("Horizontal", 13),
    Sketcher.Constraint("Vertical", 14),
    Sketcher.Constraint("Horizontal", 15),
    Sketcher.Constraint("Vertical", 16),
    Sketcher.Constraint("Horizontal", 17),
    Sketcher.Constraint("Vertical", 18),
    Sketcher.Constraint("Horizontal", 19),
    Sketcher.Constraint("Vertical", 20),
    Sketcher.Constraint("Horizontal", 21),
    Sketcher.Constraint("Vertical", 22),
    Sketcher.Constraint("Horizontal", 23),
    Sketcher.Constraint("Vertical", 24),
    Sketcher.Constraint("Horizontal", 25),
    Sketcher.Constraint("Vertical", 26),
    Sketcher.Constraint("Horizontal", 27),
    Sketcher.Constraint("Vertical", 28),
    Sketcher.Constraint("Horizontal", 29),
    Sketcher.Constraint("Vertical", 30),
    Sketcher.Constraint("Horizontal", 31),
    Sketcher.Constraint("Vertical", 32),
    Sketcher.Constraint("Horizontal", 33),
    Sketcher.Constraint("Vertical", 34),
    Sketcher.Constraint("Horizontal", 35),
    Sketcher.Constraint("Vertical", 36),
    Sketcher.Constraint("Horizontal", 37),
    Sketcher.Constraint("Vertical", 38),
    Sketcher.Constraint("Horizontal", 39),
    Sketcher.Constraint("Horizontal", 40),
    Sketcher.Constraint("Vertical", 41),
    Sketcher.Constraint("Horizontal", 42),
    Sketcher.Constraint("Vertical", 43),
    Sketcher.Constraint("Horizontal", 44),
    Sketcher.Constraint("Vertical", 45),
    Sketcher.Constraint("Horizontal", 46),
    Sketcher.Constraint("Vertical", 47),
    Sketcher.Constraint("Symmetric", 5, 2, 8, 2, -2),
    Sketcher.Constraint("Symmetric", 3, 2, 10, 2, -2),
    Sketcher.Constraint("Symmetric", 1, 2, 12, 2, -2),
    Sketcher.Constraint("Symmetric", 27, 2, 30, 2, -2),
    Sketcher.Constraint("Symmetric", 25, 2, 32, 2, -2),
    Sketcher.Constraint("Symmetric", 23, 2, 34, 2, -2),
    Sketcher.Constraint("Symmetric", 21, 2, 36, 2, -2),
    Sketcher.Constraint("Symmetric", 15, 2, 38, 2, -2),
    Sketcher.Constraint("Horizontal", 1, 2, 4, 2),
    Sketcher.Constraint("Horizontal", 3, 2, 6, 2),
    Sketcher.Constraint("Horizontal", 11, 2, 14, 2),
    Sketcher.Constraint("Horizontal", 13, 2, 16, 2),
    Sketcher.Constraint("Horizontal", 19, 2, 22, 2),
    Sketcher.Constraint("Horizontal", 21, 2, 24, 2),
    Sketcher.Constraint("Horizontal", 23, 2, 26, 2),
    Sketcher.Constraint("Horizontal", 25, 2, 28, 2),
    Sketcher.Constraint("Vertical", 16, 2, 19, 2),
    Sketcher.Constraint("Vertical", 14, 2, 21, 2),
    Sketcher.Constraint("Vertical", 12, 2, 23, 2),
    Sketcher.Constraint("Vertical", 10, 2, 25, 2),
    Sketcher.Constraint("Vertical", 8, 2, 27, 2),
    Sketcher.Constraint("Vertical", 0, 2, 35, 2),
    Sketcher.Constraint("Vertical", 41, 2, 44, 2),
    Sketcher.Constraint("Vertical", 43, 2, 46, 2),
    Sketcher.Constraint("Equal", 1, 3),
    Sketcher.Constraint("Equal", 3, 5),
    Sketcher.Constraint("Equal", 5, 7),
    Sketcher.Constraint("Equal", 13, 15),
    Sketcher.Constraint("Equal", 16, 20),
    Sketcher.Constraint("Equal", 39, 41),
    Sketcher.Constraint("Equal", 43, 45),
    Sketcher.Constraint("DistanceX", 1, 1, 1, 2, Q("0.5 in")),
    Sketcher.Constraint("DistanceX", 17, 1, 17, 2, Q("0.1 in")),
    Sketcher.Constraint("DistanceY", 44, 2, 40, 2, Q("1 in")),
    Sketcher.Constraint("DistanceY", 18, 2, 18, 1, Q("2.65 in")),
    Sketcher.Constraint("DistanceX", 40, 2, 40, 1, Q("0.115 in")),
    Sketcher.Constraint("DistanceY", 0, 2, 0, 1, Q("0.123 in")),
    Sketcher.Constraint("DistanceY", -1, 1, 40, 2, Q("5.16 in")),
    Sketcher.Constraint("DistanceY", -1, 1, 0, 2, Q("5.735 in")),
    Sketcher.Constraint("DistanceX", -1, 1, 40, 2, Q("2.0775 in")),
])
pad3 = doc.addObject("PartDesign::Pad", "Pad002")
body3.addObject(pad3)
pad3.Profile = sketch3
pad3.Length = Q("0.123 in")
pad3.Reversed = True
body4 = doc.addObject("PartDesign::Body", "Body003")

# Sketch on XZ plane
sketch4 = doc.addObject("Sketcher::SketchObject", "Sketch003")
body4.addObject(sketch4)
sketch4.AttachmentSupport = (doc.getObject("XZ_Plane003"), [""])
sketch4.MapMode = "FlatFace"
sketch4.addGeometry([
    Part.LineSegment(Vector(127, 53.2, 0), Vector(127, 37.3, 0)),  # 0
    Part.ArcOfCircle(Part.Circle(Vector(133.3, 37.3, 0), Vector(0, 0, 1), 6.3), math.radians(180), math.radians(360)),  # 1
    Part.LineSegment(Vector(139.7, 37.3, 0), Vector(139.7, 53.2, 0)),  # 2
    Part.LineSegment(Vector(139.7, 53.2, 0), Vector(152.4, 53.2, 0)),  # 3
    Part.LineSegment(Vector(152.4, 53.2, 0), Vector(152.4, 50, 0)),  # 4
    Part.LineSegment(Vector(152.4, 50, 0), Vector(167, 50, 0)),  # 5
    Part.LineSegment(Vector(167, 50, 0), Vector(167, 38.8, 0)),  # 6
    Part.LineSegment(Vector(167, 38.8, 0), Vector(170.1, 38.8, 0)),  # 7
    Part.LineSegment(Vector(170.1, 38.8, 0), Vector(170.1, 26.1, 0)),  # 8
    Part.LineSegment(Vector(170.1, 26.1, 0), Vector(167, 26.1, 0)),  # 9
    Part.LineSegment(Vector(167, 26.1, 0), Vector(167, 3.3, 0)),  # 10
    Part.LineSegment(Vector(167, 3.3, 0), Vector(99.7, 3.3, 0)),  # 11
    Part.LineSegment(Vector(99.7, 3.3, 0), Vector(99.7, 26.1, 0)),  # 12
    Part.LineSegment(Vector(99.7, 26.1, 0), Vector(96.6, 26.1, 0)),  # 13
    Part.LineSegment(Vector(96.6, 26.1, 0), Vector(96.6, 38.8, 0)),  # 14
    Part.LineSegment(Vector(96.6, 38.8, 0), Vector(99.7, 38.8, 0)),  # 15
    Part.LineSegment(Vector(99.7, 38.8, 0), Vector(99.7, 50, 0)),  # 16
    Part.LineSegment(Vector(99.7, 50, 0), Vector(114.3, 50, 0)),  # 17
    Part.LineSegment(Vector(114.3, 50, 0), Vector(114.3, 53.2, 0)),  # 18
    Part.LineSegment(Vector(114.3, 53.2, 0), Vector(127, 53.2, 0)),  # 19
], False)
sketch4.addConstraint([
    Sketcher.Constraint("Tangent", 0, 2, 1, 1),
    Sketcher.Constraint("Tangent", 1, 2, 2, 1),
    Sketcher.Constraint("Coincident", 2, 2, 3, 1),
    Sketcher.Constraint("Coincident", 3, 2, 4, 1),
    Sketcher.Constraint("Coincident", 4, 2, 5, 1),
    Sketcher.Constraint("Coincident", 5, 2, 6, 1),
    Sketcher.Constraint("Coincident", 6, 2, 7, 1),
    Sketcher.Constraint("Coincident", 7, 2, 8, 1),
    Sketcher.Constraint("Coincident", 8, 2, 9, 1),
    Sketcher.Constraint("Coincident", 9, 2, 10, 1),
    Sketcher.Constraint("Coincident", 10, 2, 11, 1),
    Sketcher.Constraint("Coincident", 11, 2, 12, 1),
    Sketcher.Constraint("Coincident", 12, 2, 13, 1),
    Sketcher.Constraint("Coincident", 13, 2, 14, 1),
    Sketcher.Constraint("Coincident", 14, 2, 15, 1),
    Sketcher.Constraint("Coincident", 15, 2, 16, 1),
    Sketcher.Constraint("Coincident", 16, 2, 17, 1),
    Sketcher.Constraint("Coincident", 17, 2, 18, 1),
    Sketcher.Constraint("Coincident", 18, 2, 19, 1),
    Sketcher.Constraint("Coincident", 19, 2, 0, 1),
    Sketcher.Constraint("Vertical", 0),
    Sketcher.Constraint("Vertical", 2),
    Sketcher.Constraint("Horizontal", 3),
    Sketcher.Constraint("Vertical", 4),
    Sketcher.Constraint("Horizontal", 5),
    Sketcher.Constraint("Vertical", 6),
    Sketcher.Constraint("Horizontal", 7),
    Sketcher.Constraint("Vertical", 8),
    Sketcher.Constraint("Horizontal", 9),
    Sketcher.Constraint("Vertical", 10),
    Sketcher.Constraint("Horizontal", 11),
    Sketcher.Constraint("Vertical", 12),
    Sketcher.Constraint("Horizontal", 13),
    Sketcher.Constraint("Vertical", 14),
    Sketcher.Constraint("Horizontal", 15),
    Sketcher.Constraint("Vertical", 16),
    Sketcher.Constraint("Horizontal", 17),
    Sketcher.Constraint("Vertical", 18),
    Sketcher.Constraint("Horizontal", 19),
    Sketcher.Constraint("Horizontal", 9, 2, 12, 2),
    Sketcher.Constraint("Horizontal", 7, 2, 14, 2),
    Sketcher.Constraint("Horizontal", 5, 2, 16, 2),
    Sketcher.Constraint("Horizontal", 3, 2, 18, 2),
    Sketcher.Constraint("Vertical", 6, 2, 9, 2),
    Sketcher.Constraint("Vertical", 12, 2, 15, 2),
    Sketcher.Constraint("Equal", 9, 13),
    Sketcher.Constraint("Equal", 5, 17),
    Sketcher.Constraint("Equal", 3, 19),
    Sketcher.Constraint("Equal", 15, 4),
    Sketcher.Constraint("Equal", 19, 8),
    Sketcher.Constraint("Radius", 1, Q("0.25 in")),
    Sketcher.Constraint("DistanceX", 3, 1, 3, 2, Q("0.5 in")),
    Sketcher.Constraint("DistanceX", -1, 1, 0, 2, Q("5 in")),
    Sketcher.Constraint("DistanceX", 11, 2, 11, 1, Q("2.65 in")),
    Sketcher.Constraint("DistanceY", 1, 2, 4, 2, Q("0.5 in")),
    Sketcher.Constraint("DistanceX", 7, 1, 7, 2, Q("0.123 in")),
    Sketcher.Constraint("DistanceY", -1, 1, 1, 3, Q("1.47 in")),
    Sketcher.Constraint("DistanceY", 6, 2, 6, 1, Q("0.4425 in")),
    Sketcher.Constraint("DistanceY", 10, 2, 10, 1, 22.815863),
])
pad4 = doc.addObject("PartDesign::Pad", "Pad003")
body4.addObject(pad4)
pad4.Profile = sketch4
pad4.Length = Q("0.123 in")
pad4.Reversed = True
body5 = doc.addObject("PartDesign::Body", "Body004")

# Sketch on XZ plane
sketch5 = doc.addObject("Sketcher::SketchObject", "Sketch004")
body5.addObject(sketch5)
sketch5.AttachmentSupport = (doc.getObject("XZ_Plane004"), [""])
sketch5.MapMode = "FlatFace"
sketch5.addGeometry([
    Part.LineSegment(Vector(126.8, -36.4, 0), Vector(146.1, -55.7, 0)),  # 0
    Part.LineSegment(Vector(146.1, -55.7, 0), Vector(139.2, -62.6, 0)),  # 1
    Part.LineSegment(Vector(139.2, -62.6, 0), Vector(141.4, -64.8, 0)),  # 2
    Part.LineSegment(Vector(141.4, -64.8, 0), Vector(132.4, -73.8, 0)),  # 3
    Part.LineSegment(Vector(132.4, -73.8, 0), Vector(130.2, -71.6, 0)),  # 4
    Part.LineSegment(Vector(130.2, -71.6, 0), Vector(121.3, -80.6, 0)),  # 5
    Part.LineSegment(Vector(121.3, -80.6, 0), Vector(123.5, -82.8, 0)),  # 6
    Part.LineSegment(Vector(123.5, -82.8, 0), Vector(114.5, -91.8, 0)),  # 7
    Part.LineSegment(Vector(114.5, -91.8, 0), Vector(112.3, -89.6, 0)),  # 8
    Part.LineSegment(Vector(112.3, -89.6, 0), Vector(103.3, -98.5, 0)),  # 9
    Part.LineSegment(Vector(103.3, -98.5, 0), Vector(105.5, -100.8, 0)),  # 10
    Part.LineSegment(Vector(105.5, -100.8, 0), Vector(96.5, -109.7, 0)),  # 11
    Part.LineSegment(Vector(96.5, -109.7, 0), Vector(94.3, -107.5, 0)),  # 12
    Part.LineSegment(Vector(94.3, -107.5, 0), Vector(81.2, -120.6, 0)),  # 13
    Part.LineSegment(Vector(81.2, -120.6, 0), Vector(33.6, -73, 0)),  # 14
    Part.LineSegment(Vector(33.6, -73, 0), Vector(46.7, -59.9, 0)),  # 15
    Part.LineSegment(Vector(46.7, -59.9, 0), Vector(44.5, -57.7, 0)),  # 16
    Part.LineSegment(Vector(44.5, -57.7, 0), Vector(53.5, -48.7, 0)),  # 17
    Part.LineSegment(Vector(53.5, -48.7, 0), Vector(55.7, -51, 0)),  # 18
    Part.LineSegment(Vector(55.7, -51, 0), Vector(64.7, -42, 0)),  # 19
    Part.LineSegment(Vector(64.7, -42, 0), Vector(62.5, -39.8, 0)),  # 20
    Part.LineSegment(Vector(62.5, -39.8, 0), Vector(71.4, -30.8, 0)),  # 21
    Part.LineSegment(Vector(71.4, -30.8, 0), Vector(73.7, -33, 0)),  # 22
    Part.LineSegment(Vector(73.7, -33, 0), Vector(82.6, -24, 0)),  # 23
    Part.LineSegment(Vector(82.6, -24, 0), Vector(80.4, -21.8, 0)),  # 24
    Part.LineSegment(Vector(80.4, -21.8, 0), Vector(89.4, -12.8, 0)),  # 25
    Part.LineSegment(Vector(89.4, -12.8, 0), Vector(91.6, -15, 0)),  # 26
    Part.LineSegment(Vector(91.6, -15, 0), Vector(98.5, -8.1, 0)),  # 27
    Part.LineSegment(Vector(98.5, -8.1, 0), Vector(117.8, -27.4, 0)),  # 28
    Part.LineSegment(Vector(117.8, -27.4, 0), Vector(105.1, -40.1, 0)),  # 29
    Part.ArcOfCircle(Part.Circle(Vector(109.6, -44.6, 0), Vector(0, 0, 1), 6.3), math.radians(135), math.radians(315)),  # 30
    Part.LineSegment(Vector(114.1, -49.1, 0), Vector(126.8, -36.4, 0)),  # 31
], False)
sketch5.addConstraint([
    Sketcher.Constraint("Coincident", 0, 2, 1, 1),
    Sketcher.Constraint("Coincident", 1, 2, 2, 1),
    Sketcher.Constraint("Coincident", 2, 2, 3, 1),
    Sketcher.Constraint("Coincident", 3, 2, 4, 1),
    Sketcher.Constraint("Coincident", 4, 2, 5, 1),
    Sketcher.Constraint("Coincident", 5, 2, 6, 1),
    Sketcher.Constraint("Coincident", 6, 2, 7, 1),
    Sketcher.Constraint("Coincident", 7, 2, 8, 1),
    Sketcher.Constraint("Coincident", 8, 2, 9, 1),
    Sketcher.Constraint("Coincident", 9, 2, 10, 1),
    Sketcher.Constraint("Coincident", 10, 2, 11, 1),
    Sketcher.Constraint("Coincident", 11, 2, 12, 1),
    Sketcher.Constraint("Coincident", 12, 2, 13, 1),
    Sketcher.Constraint("Coincident", 13, 2, 14, 1),
    Sketcher.Constraint("Coincident", 14, 2, 15, 1),
    Sketcher.Constraint("Coincident", 15, 2, 16, 1),
    Sketcher.Constraint("Coincident", 16, 2, 17, 1),
    Sketcher.Constraint("Coincident", 17, 2, 18, 1),
    Sketcher.Constraint("Coincident", 18, 2, 19, 1),
    Sketcher.Constraint("Coincident", 19, 2, 20, 1),
    Sketcher.Constraint("Coincident", 20, 2, 21, 1),
    Sketcher.Constraint("Coincident", 21, 2, 22, 1),
    Sketcher.Constraint("Coincident", 22, 2, 23, 1),
    Sketcher.Constraint("Coincident", 23, 2, 24, 1),
    Sketcher.Constraint("Coincident", 24, 2, 25, 1),
    Sketcher.Constraint("Coincident", 25, 2, 26, 1),
    Sketcher.Constraint("Coincident", 26, 2, 27, 1),
    Sketcher.Constraint("Coincident", 27, 2, 28, 1),
    Sketcher.Constraint("Coincident", 28, 2, 29, 1),
    Sketcher.Constraint("Tangent", 29, 2, 30, 1),
    Sketcher.Constraint("Tangent", 30, 2, 31, 1),
    Sketcher.Constraint("Coincident", 31, 2, 0, 1),
    Sketcher.Constraint("Perpendicular", 0, 1),
    Sketcher.Constraint("Perpendicular", 1, 2),
    Sketcher.Constraint("Perpendicular", 2, 3),
    Sketcher.Constraint("Perpendicular", 3, 4),
    Sketcher.Constraint("Perpendicular", 4, 5),
    Sketcher.Constraint("Perpendicular", 5, 6),
    Sketcher.Constraint("Perpendicular", 6, 7),
    Sketcher.Constraint("Perpendicular", 7, 8),
    Sketcher.Constraint("Perpendicular", 8, 9),
    Sketcher.Constraint("Perpendicular", 9, 10),
    Sketcher.Constraint("Perpendicular", 10, 11),
    Sketcher.Constraint("Perpendicular", 11, 12),
    Sketcher.Constraint("Perpendicular", 12, 13),
    Sketcher.Constraint("Perpendicular", 13, 14),
    Sketcher.Constraint("Perpendicular", 14, 15),
    Sketcher.Constraint("Perpendicular", 15, 16),
    Sketcher.Constraint("Perpendicular", 16, 17),
    Sketcher.Constraint("Perpendicular", 17, 18),
    Sketcher.Constraint("Perpendicular", 18, 19),
    Sketcher.Constraint("Perpendicular", 19, 20),
    Sketcher.Constraint("Perpendicular", 20, 21),
    Sketcher.Constraint("Perpendicular", 21, 22),
    Sketcher.Constraint("Perpendicular", 22, 23),
    Sketcher.Constraint("Perpendicular", 23, 24),
    Sketcher.Constraint("Perpendicular", 24, 25),
    Sketcher.Constraint("Perpendicular", 25, 26),
    Sketcher.Constraint("Perpendicular", 26, 27),
    Sketcher.Constraint("Perpendicular", 27, 28),
    Sketcher.Constraint("Perpendicular", 28, 29),
    Sketcher.Constraint("Parallel", 29, 31),
    Sketcher.Constraint("Equal", 2, 4),
    Sketcher.Constraint("Equal", 3, 5),
    Sketcher.Constraint("Equal", 4, 6),
    Sketcher.Constraint("Equal", 5, 7),
    Sketcher.Constraint("Equal", 6, 8),
    Sketcher.Constraint("Equal", 7, 9),
    Sketcher.Constraint("Equal", 8, 10),
    Sketcher.Constraint("Equal", 9, 11),
    Sketcher.Constraint("Equal", 10, 12),
    Sketcher.Constraint("Equal", 13, 15),
    Sketcher.Constraint("Equal", 12, 16),
    Sketcher.Constraint("Equal", 11, 17),
    Sketcher.Constraint("Equal", 16, 18),
    Sketcher.Constraint("Equal", 17, 19),
    Sketcher.Constraint("Equal", 18, 20),
    Sketcher.Constraint("Equal", 19, 21),
    Sketcher.Constraint("Equal", 20, 22),
    Sketcher.Constraint("Equal", 21, 23),
    Sketcher.Constraint("Equal", 22, 24),
    Sketcher.Constraint("Equal", 23, 25),
    Sketcher.Constraint("Equal", 24, 26),
    Sketcher.Constraint("Equal", 1, 27),
    Sketcher.Constraint("Equal", 0, 28),
    Sketcher.Constraint("Radius", 30, Q("0.25 in")),
    Sketcher.Constraint("Angle", 0, Q("-45 deg")),
    Sketcher.Constraint("Distance", 3, Q("0.5 in")),
    Sketcher.Constraint("DistanceX", 29, 2, 28, 2, Q("0.5 in")),
    Sketcher.Constraint("Distance", 14, Q("2.65 in")),
    Sketcher.Constraint("Distance", 1, Q("0.385 in")),
    Sketcher.Constraint("Distance", 2, Q("0.123 in")),
    Sketcher.Constraint("DistanceX", -1, 1, 2, 2, 141.421588),
    Sketcher.Constraint("DistanceY", 4, 2, -1, 1, 71.608549),
    Sketcher.Constraint("DistanceX", 13, 2, 12, 2, 13.08607),
])
pad5 = doc.addObject("PartDesign::Pad", "Pad004")
body5.addObject(pad5)
pad5.Profile = sketch5
pad5.Length = Q("0.123 in")
pad5.Reversed = True
body6 = doc.addObject("PartDesign::Body", "Body005")

# Sketch on XZ plane
sketch6 = doc.addObject("Sketcher::SketchObject", "Sketch005")
body6.addObject(sketch6)
sketch6.AttachmentSupport = (doc.getObject("XZ_Plane005"), [""])
sketch6.MapMode = "FlatFace"
add_polygon(sketch6, [(-60.3, -125.7), (-57.1, -125.7), (-57.1, -64.7), (-60.3, -64.7), (-60.3, -61.5), (-57.1, -61.5), (-57.1, -58.4), (-44.5, -58.4), (-44.5, -61.5), (-41.3, -61.5), (-41.3, -64.7), (-44.5, -64.7), (-44.5, -125.7), (-41.3, -125.7), (-41.3, -128.9), (-44.5, -128.9), (-44.5, -132), (-57.1, -132), (-57.1, -128.9), (-60.3, -128.9)])  # lines 0-19
sketch6.addConstraint([
    Sketcher.Constraint("Horizontal", 0),
    Sketcher.Constraint("Vertical", 1),
    Sketcher.Constraint("Horizontal", 2),
    Sketcher.Constraint("Vertical", 3),
    Sketcher.Constraint("Horizontal", 4),
    Sketcher.Constraint("Vertical", 5),
    Sketcher.Constraint("Horizontal", 6),
    Sketcher.Constraint("Vertical", 7),
    Sketcher.Constraint("Horizontal", 8),
    Sketcher.Constraint("Vertical", 9),
    Sketcher.Constraint("Horizontal", 10),
    Sketcher.Constraint("Vertical", 11),
    Sketcher.Constraint("Horizontal", 12),
    Sketcher.Constraint("Vertical", 13),
    Sketcher.Constraint("Horizontal", 14),
    Sketcher.Constraint("Vertical", 15),
    Sketcher.Constraint("Horizontal", 16),
    Sketcher.Constraint("Vertical", 17),
    Sketcher.Constraint("Horizontal", 18),
    Sketcher.Constraint("Vertical", 19),
    Sketcher.Constraint("Horizontal", 4, 2, 7, 2),
    Sketcher.Constraint("Horizontal", 2, 2, 9, 2),
    Sketcher.Constraint("Horizontal", 0, 2, 11, 2),
    Sketcher.Constraint("Horizontal", 14, 2, 17, 2),
    Sketcher.Constraint("Vertical", 1, 2, 4, 2),
    Sketcher.Constraint("Vertical", 7, 2, 10, 2),
    Sketcher.Constraint("Vertical", 9, 2, 12, 2),
    Sketcher.Constraint("Vertical", 11, 2, 14, 2),
    Sketcher.Constraint("Vertical", 5, 2, 16, 2),
    Sketcher.Constraint("Vertical", 3, 2, 18, 2),
    Sketcher.Constraint("Equal", 4, 8),
    Sketcher.Constraint("Equal", 18, 3),
    Sketcher.Constraint("Equal", 3, 5),
    Sketcher.Constraint("Equal", 9, 13),
    Sketcher.Constraint("Equal", 13, 15),
    Sketcher.Constraint("DistanceX", 6, 1, 6, 2, Q("0.5 in")),
    Sketcher.Constraint("DistanceY", 5, 2, -1, 1, Q("2.3 in")),
    Sketcher.Constraint("DistanceX", 0, 1, 0, 2, Q("0.123 in")),
    Sketcher.Constraint("DistanceY", 1, 1, 1, 2, Q("2.404 in")),
    Sketcher.Constraint("DistanceX", 0, 2, -1, 1, Q("2.25 in")),
])
pad6 = doc.addObject("PartDesign::Pad", "Pad005")
body6.addObject(pad6)
pad6.Profile = sketch6
pad6.Length = Q("0.123 in")
pad6.Reversed = True

doc.recompute()
